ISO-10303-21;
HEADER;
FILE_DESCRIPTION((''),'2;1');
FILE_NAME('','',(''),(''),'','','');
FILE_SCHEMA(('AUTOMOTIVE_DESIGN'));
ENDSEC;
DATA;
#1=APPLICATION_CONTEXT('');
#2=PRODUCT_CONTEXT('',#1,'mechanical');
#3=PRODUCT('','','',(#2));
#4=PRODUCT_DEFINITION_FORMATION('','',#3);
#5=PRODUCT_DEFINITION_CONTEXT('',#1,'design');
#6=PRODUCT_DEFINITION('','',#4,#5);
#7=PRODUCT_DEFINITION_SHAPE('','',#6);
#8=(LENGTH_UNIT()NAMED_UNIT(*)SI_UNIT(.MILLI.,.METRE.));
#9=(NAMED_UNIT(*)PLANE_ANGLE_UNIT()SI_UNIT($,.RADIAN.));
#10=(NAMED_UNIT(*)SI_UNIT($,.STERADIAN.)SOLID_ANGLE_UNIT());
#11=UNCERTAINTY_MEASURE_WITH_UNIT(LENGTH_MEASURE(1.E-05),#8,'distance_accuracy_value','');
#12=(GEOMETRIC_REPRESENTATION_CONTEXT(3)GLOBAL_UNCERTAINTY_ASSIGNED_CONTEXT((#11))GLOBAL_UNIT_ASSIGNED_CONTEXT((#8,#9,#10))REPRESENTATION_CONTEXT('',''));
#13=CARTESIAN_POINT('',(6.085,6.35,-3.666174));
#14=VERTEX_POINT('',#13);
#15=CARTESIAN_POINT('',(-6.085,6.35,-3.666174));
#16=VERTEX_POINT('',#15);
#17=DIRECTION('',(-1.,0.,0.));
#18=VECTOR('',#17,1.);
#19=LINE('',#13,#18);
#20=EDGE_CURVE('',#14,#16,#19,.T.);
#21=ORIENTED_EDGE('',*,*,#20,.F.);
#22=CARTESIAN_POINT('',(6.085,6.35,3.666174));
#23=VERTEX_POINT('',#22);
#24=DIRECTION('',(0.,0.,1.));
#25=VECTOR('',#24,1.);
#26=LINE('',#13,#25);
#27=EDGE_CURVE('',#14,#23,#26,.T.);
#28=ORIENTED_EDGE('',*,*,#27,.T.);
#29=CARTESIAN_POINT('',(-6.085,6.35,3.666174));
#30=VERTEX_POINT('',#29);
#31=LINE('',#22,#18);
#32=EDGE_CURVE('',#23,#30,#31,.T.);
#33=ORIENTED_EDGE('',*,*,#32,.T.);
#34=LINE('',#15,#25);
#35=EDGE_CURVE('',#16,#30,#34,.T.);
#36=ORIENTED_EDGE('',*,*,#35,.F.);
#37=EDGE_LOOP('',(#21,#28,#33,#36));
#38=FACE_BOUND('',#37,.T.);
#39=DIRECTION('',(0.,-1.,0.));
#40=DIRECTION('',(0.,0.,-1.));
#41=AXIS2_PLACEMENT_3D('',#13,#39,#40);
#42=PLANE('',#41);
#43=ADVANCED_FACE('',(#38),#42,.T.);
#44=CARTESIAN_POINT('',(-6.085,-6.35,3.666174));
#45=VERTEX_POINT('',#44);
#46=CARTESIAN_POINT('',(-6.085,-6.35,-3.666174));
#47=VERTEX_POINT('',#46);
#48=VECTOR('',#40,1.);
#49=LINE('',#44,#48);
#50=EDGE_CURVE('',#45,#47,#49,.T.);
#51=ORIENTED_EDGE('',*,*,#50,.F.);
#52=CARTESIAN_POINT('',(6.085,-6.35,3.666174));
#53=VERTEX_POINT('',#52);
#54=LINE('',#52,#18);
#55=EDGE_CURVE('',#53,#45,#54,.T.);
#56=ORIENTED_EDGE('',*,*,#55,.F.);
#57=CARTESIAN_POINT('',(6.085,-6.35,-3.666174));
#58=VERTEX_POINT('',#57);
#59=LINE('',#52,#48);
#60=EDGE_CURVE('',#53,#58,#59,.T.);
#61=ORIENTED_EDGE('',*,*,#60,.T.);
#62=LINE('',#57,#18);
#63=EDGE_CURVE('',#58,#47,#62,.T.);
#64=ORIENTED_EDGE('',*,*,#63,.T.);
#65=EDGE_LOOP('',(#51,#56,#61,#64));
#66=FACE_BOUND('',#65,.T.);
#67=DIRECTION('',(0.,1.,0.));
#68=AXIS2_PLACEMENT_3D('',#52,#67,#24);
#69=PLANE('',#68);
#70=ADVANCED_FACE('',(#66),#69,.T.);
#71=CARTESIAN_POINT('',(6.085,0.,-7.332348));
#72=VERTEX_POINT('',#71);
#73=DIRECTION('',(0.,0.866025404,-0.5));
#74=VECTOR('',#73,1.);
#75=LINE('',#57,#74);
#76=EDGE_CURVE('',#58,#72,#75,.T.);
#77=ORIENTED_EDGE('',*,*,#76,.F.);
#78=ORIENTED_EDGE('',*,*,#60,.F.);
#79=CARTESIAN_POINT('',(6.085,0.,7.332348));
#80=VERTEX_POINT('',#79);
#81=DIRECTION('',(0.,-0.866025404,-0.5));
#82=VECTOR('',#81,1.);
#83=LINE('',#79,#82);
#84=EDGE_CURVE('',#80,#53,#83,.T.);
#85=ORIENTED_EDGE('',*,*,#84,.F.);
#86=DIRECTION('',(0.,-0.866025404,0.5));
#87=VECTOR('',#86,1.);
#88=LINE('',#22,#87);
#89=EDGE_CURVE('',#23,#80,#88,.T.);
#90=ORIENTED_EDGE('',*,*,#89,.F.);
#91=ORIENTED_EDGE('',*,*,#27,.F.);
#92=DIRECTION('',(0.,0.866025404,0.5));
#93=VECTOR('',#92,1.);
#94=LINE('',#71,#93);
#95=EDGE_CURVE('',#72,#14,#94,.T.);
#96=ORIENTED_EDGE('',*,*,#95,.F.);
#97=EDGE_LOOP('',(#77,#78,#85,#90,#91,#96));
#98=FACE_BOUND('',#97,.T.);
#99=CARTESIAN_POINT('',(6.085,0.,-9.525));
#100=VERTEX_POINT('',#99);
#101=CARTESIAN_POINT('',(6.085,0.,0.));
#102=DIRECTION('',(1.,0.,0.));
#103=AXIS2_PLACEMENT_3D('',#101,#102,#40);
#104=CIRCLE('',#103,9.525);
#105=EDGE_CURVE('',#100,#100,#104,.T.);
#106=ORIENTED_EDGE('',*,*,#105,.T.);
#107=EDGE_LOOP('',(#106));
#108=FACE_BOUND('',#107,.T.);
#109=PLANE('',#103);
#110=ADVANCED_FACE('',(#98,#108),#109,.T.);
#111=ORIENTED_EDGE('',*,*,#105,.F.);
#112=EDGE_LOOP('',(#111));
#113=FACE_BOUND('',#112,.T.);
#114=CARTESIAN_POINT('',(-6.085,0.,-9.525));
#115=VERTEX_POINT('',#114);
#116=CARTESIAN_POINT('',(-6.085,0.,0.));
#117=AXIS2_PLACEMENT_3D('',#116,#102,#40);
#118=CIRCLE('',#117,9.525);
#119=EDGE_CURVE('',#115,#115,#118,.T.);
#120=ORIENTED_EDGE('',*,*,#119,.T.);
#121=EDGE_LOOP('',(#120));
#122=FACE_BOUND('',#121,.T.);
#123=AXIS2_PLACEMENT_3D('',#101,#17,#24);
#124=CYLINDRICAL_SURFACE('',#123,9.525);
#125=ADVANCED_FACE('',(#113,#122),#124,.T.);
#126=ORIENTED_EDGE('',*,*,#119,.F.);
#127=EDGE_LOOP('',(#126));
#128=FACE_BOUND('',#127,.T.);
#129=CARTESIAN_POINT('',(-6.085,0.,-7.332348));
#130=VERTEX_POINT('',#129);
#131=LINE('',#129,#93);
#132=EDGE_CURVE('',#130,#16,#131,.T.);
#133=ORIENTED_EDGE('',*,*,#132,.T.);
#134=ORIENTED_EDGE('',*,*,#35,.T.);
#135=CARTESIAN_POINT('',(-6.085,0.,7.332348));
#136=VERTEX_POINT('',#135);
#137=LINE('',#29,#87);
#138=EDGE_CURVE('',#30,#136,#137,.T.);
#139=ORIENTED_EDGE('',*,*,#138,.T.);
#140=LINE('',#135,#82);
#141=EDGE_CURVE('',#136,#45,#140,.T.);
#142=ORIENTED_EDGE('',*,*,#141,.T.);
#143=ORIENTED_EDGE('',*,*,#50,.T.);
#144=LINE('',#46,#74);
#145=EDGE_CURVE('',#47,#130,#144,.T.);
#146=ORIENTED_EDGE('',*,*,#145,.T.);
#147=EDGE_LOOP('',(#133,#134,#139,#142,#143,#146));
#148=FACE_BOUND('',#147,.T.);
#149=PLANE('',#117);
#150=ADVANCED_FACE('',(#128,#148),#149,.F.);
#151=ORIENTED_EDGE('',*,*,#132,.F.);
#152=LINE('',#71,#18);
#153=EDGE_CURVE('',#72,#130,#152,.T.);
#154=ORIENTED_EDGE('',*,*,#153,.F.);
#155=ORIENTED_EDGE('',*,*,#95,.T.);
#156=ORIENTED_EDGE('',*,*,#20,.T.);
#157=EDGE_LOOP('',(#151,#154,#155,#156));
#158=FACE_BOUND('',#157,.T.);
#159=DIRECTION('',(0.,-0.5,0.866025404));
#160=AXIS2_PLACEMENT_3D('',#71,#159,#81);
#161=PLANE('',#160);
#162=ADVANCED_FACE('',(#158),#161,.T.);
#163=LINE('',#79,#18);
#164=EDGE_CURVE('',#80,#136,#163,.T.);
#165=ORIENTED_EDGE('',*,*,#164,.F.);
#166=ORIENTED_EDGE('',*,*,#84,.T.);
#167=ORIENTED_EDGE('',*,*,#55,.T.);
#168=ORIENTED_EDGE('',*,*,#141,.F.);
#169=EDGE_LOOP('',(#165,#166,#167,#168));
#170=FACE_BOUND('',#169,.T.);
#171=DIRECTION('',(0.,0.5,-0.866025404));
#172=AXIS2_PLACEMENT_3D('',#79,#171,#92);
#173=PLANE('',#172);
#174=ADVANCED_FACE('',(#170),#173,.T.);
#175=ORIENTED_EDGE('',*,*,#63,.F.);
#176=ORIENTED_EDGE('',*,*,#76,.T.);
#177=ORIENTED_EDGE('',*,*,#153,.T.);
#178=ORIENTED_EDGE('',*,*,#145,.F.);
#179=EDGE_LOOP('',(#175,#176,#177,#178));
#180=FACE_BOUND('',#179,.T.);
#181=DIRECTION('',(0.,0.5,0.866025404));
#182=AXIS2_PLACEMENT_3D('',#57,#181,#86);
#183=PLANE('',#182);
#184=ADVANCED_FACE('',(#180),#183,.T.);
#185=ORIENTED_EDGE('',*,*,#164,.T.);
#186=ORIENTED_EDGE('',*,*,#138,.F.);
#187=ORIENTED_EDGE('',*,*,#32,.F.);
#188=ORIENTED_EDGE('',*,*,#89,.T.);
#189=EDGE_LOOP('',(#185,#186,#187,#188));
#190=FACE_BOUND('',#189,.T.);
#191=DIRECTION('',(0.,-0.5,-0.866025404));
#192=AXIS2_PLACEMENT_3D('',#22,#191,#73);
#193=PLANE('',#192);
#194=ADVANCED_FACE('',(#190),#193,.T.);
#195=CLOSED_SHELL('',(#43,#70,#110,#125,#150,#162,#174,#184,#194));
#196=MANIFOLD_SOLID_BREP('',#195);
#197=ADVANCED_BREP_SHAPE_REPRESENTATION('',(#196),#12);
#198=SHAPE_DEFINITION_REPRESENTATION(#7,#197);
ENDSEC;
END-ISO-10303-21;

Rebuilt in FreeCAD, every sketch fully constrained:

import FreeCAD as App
import Part
import Sketcher
Q = App.Units.Quantity


def add_polygon(sketch, points):
    """Adds a closed chain of lines whose ends are joined by coincident constraints."""
    first, n = sketch.GeometryCount, len(points)
    for a, b in zip(points, points[1:] + points[:1]):
        sketch.addGeometry(Part.LineSegment(App.Vector(*a, 0), App.Vector(*b, 0)), False)
    for i in range(n):
        sketch.addConstraint(Sketcher.Constraint("Coincident", first + i, 2, first + (i + 1) % n, 1))

doc = App.newDocument("Part")
params = doc.addObject("Spreadsheet::Sheet", "Params")
for row, (alias, value) in enumerate([
    ("sketch1_diameter", "0.75 in"),
    ("pad1_length", "12.17 mm"),
], start=1):
    params.set(f"A{row}", alias)
    params.set(f"B{row}", "=" + value)
    params.setAlias(f"B{row}", alias)

body = doc.addObject("PartDesign::Body", "Body")

# Sketch on YZ plane
sketch1 = body.newObject("Sketcher::SketchObject", "Sketch")
sketch1.AttachmentSupport = (doc.getObject("YZ_Plane"), [""])
sketch1.MapMode = "FlatFace"
sketch1.addGeometry(Part.Circle(App.Vector(0, 0, 0), App.Vector(0, 0, 1), 9.525), False)  # 0
add_polygon(sketch1, [(6.35, -3.666174), (0, -7.332348), (-6.35, -3.666174), (-6.35, 3.666174), (0, 7.332348), (6.35, 3.666174)])  # lines 1-6
sketch1.addConstraint(Sketcher.Constraint("Vertical", 3))
sketch1.addConstraint(Sketcher.Constraint("Vertical", 6))
sketch1.addConstraint(Sketcher.Constraint("Coincident", 0, 3, -1, 1))
sketch1.addConstraint(Sketcher.Constraint("Symmetric", 1, 2, 4, 2, -1, 1))
sketch1.addConstraint(Sketcher.Constraint("Symmetric", 2, 2, 5, 2, -1, 1))
sketch1.addConstraint(Sketcher.Constraint("PointOnObject", 1, 2, -2))
sketch1.addConstraint(Sketcher.Constraint("Parallel", 1, 4))
sketch1.addConstraint(Sketcher.Constraint("Horizontal", 3, 2, 5, 2))
sketch1.addConstraint(Sketcher.Constraint("Diameter", 0, Q("0.75 in")))
sketch1.addConstraint(Sketcher.Constraint("Angle", 1, Q("-150 deg")))
sketch1.addConstraint(Sketcher.Constraint("DistanceX", 3, 2, 5, 2, Q("0.5 in")))
sketch1.addConstraint(Sketcher.Constraint("DistanceY", 3, 1, 3, 2, 7.332348))
sketch1.setExpression("Constraints[14]", "Params.sketch1_diameter")
pad1 = body.newObject("PartDesign::Pad", "Pad")
pad1.Profile = sketch1
pad1.setExpression("Length", "Params.pad1_length")
pad1.Midplane = True

doc.recompute()
